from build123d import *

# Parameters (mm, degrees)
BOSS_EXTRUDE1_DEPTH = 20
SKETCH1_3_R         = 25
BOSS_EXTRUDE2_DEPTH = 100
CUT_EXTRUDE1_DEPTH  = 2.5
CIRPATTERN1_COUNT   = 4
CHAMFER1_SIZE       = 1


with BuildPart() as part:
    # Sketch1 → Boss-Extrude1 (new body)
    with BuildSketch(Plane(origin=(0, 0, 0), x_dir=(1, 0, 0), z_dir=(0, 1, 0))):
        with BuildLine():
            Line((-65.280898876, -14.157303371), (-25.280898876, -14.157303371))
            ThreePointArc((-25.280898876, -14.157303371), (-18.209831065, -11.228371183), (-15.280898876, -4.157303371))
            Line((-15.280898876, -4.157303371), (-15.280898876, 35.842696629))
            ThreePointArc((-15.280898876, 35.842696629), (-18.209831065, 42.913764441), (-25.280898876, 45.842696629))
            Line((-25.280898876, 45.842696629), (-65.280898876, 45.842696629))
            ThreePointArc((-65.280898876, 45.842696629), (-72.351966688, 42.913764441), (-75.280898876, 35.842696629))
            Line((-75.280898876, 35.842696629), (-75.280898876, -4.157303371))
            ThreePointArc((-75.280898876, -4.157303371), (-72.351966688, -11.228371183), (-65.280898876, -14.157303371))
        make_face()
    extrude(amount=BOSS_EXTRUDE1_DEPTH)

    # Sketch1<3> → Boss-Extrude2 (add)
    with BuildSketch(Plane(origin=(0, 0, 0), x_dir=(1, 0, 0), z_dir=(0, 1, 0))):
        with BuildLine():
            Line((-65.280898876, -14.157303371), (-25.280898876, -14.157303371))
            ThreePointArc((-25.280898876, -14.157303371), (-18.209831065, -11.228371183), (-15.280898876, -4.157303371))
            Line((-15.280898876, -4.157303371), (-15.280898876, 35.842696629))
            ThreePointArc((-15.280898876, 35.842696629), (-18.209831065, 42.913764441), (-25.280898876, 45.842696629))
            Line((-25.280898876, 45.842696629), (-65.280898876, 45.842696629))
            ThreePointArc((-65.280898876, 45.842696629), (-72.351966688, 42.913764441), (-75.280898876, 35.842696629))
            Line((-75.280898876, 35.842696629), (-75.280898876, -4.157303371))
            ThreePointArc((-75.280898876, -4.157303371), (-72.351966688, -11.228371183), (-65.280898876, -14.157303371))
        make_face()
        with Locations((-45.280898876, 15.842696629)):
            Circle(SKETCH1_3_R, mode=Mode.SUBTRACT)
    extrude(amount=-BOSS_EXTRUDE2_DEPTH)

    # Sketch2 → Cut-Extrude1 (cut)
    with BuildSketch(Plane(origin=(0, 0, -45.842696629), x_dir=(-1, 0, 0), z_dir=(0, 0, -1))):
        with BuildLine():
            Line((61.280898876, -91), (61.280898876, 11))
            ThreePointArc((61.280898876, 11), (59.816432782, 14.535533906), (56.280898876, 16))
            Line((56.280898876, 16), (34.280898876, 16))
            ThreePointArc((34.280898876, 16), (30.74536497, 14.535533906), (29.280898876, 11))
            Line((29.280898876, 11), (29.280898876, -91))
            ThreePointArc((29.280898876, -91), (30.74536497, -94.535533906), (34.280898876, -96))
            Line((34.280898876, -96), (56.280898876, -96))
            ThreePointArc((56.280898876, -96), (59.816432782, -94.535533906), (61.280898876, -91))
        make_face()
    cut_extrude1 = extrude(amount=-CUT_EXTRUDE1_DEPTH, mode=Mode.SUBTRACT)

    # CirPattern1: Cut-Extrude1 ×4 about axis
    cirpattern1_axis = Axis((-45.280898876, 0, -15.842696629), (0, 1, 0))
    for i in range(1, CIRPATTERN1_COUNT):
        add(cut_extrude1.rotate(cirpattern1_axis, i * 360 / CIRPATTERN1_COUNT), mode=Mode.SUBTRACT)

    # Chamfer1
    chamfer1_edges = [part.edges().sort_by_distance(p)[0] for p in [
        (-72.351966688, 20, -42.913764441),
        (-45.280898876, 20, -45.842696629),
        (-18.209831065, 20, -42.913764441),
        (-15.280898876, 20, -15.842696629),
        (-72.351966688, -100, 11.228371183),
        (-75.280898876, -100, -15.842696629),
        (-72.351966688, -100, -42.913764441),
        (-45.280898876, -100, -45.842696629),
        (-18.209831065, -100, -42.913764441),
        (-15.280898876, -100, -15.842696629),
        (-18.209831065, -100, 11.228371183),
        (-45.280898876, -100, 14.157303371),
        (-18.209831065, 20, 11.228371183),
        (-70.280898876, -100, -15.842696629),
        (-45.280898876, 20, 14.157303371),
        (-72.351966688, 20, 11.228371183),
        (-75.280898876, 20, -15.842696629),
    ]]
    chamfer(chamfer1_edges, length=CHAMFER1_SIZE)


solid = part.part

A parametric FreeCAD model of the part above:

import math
import FreeCAD as App
import Part
import Sketcher
Q = App.Units.Quantity


def edges_at(feature, points):
    """Names of the edges that pass closest to the given points."""
    edges = feature.Shape.Edges
    near = lambda p: min(range(len(edges)), key=lambda i: edges[i].distToShape(Part.Vertex(*p))[0])
    return sorted({f"Edge{near(p) + 1}" for p in points})

doc = App.newDocument("Part")
body = doc.addObject("PartDesign::Body", "Body")

# Sketch on XZ plane
sketch1 = body.newObject("Sketcher::SketchObject", "Sketch")
sketch1.AttachmentSupport = (doc.getObject("XZ_Plane"), [""])
sketch1.MapMode = "FlatFace"
sketch1.addGeometry([
    Part.LineSegment(App.Vector(-65.280899, 14.157303, 0), App.Vector(-25.280899, 14.157303, 0)),  # 0
    Part.ArcOfCircle(Part.Circle(App.Vector(-25.280899, 4.157303, 0), App.Vector(0, 0, 1), 10), math.radians(0), math.radians(90)),  # 1
    Part.LineSegment(App.Vector(-15.280899, 4.157303, 0), App.Vector(-15.280899, -35.842697, 0)),  # 2
    Part.ArcOfCircle(Part.Circle(App.Vector(-25.280899, -35.842697, 0), App.Vector(0, 0, 1), 10), math.radians(-90), math.radians(0)),  # 3
    Part.LineSegment(App.Vector(-25.280899, -45.842697, 0), App.Vector(-65.280899, -45.842697, 0)),  # 4
    Part.ArcOfCircle(Part.Circle(App.Vector(-65.280899, -35.842697, 0), App.Vector(0, 0, 1), 10), math.radians(180), math.radians(270)),  # 5
    Part.LineSegment(App.Vector(-75.280899, -35.842697, 0), App.Vector(-75.280899, 4.157303, 0)),  # 6
    Part.ArcOfCircle(Part.Circle(App.Vector(-65.280899, 4.157303, 0), App.Vector(0, 0, 1), 10), math.radians(90), math.radians(180)),  # 7
], False)
sketch1.addConstraint([
    Sketcher.Constraint("Tangent", 0, 2, 1, 2),
    Sketcher.Constraint("Tangent", 1, 1, 2, 1),
    Sketcher.Constraint("Tangent", 2, 2, 3, 2),
    Sketcher.Constraint("Tangent", 3, 1, 4, 1),
    Sketcher.Constraint("Tangent", 4, 2, 5, 2),
    Sketcher.Constraint("Tangent", 5, 1, 6, 1),
    Sketcher.Constraint("Tangent", 6, 2, 7, 2),
    Sketcher.Constraint("Tangent", 7, 1, 0, 1),
    Sketcher.Constraint("Horizontal", 0),
    Sketcher.Constraint("Vertical", 2),
    Sketcher.Constraint("Horizontal", 4),
    Sketcher.Constraint("Vertical", 6),
    Sketcher.Constraint("Equal", 1, 3),
    Sketcher.Constraint("Equal", 3, 5),
    Sketcher.Constraint("Equal", 5, 7),
    Sketcher.Constraint("Equal", 4, 2),
    Sketcher.Constraint("Radius", 1, Q("10 mm")),
    Sketcher.Constraint("DistanceX", 0, 1, 0, 2, Q("40 mm")),
    Sketcher.Constraint("DistanceX", 1, 3, -1, 1, Q("25.280899 mm")),
    Sketcher.Constraint("DistanceY", -1, 1, 1, 3, Q("4.157303 mm")),
])
pad1 = body.newObject("PartDesign::Pad", "Pad")
pad1.Profile = sketch1
pad1.Length = 20
pad1.Reversed = True

# Sketch on XZ plane
sketch2 = body.newObject("Sketcher::SketchObject", "Sketch001")
sketch2.AttachmentSupport = (doc.getObject("XZ_Plane"), [""])
sketch2.MapMode = "FlatFace"
sketch2.addGeometry([
    Part.LineSegment(App.Vector(-65.280899, 14.157303, 0), App.Vector(-25.280899, 14.157303, 0)),  # 0
    Part.ArcOfCircle(Part.Circle(App.Vector(-25.280899, 4.157303, 0), App.Vector(0, 0, 1), 10), math.radians(0), math.radians(90)),  # 1
    Part.LineSegment(App.Vector(-15.280899, 4.157303, 0), App.Vector(-15.280899, -35.842697, 0)),  # 2
    Part.ArcOfCircle(Part.Circle(App.Vector(-25.280899, -35.842697, 0), App.Vector(0, 0, 1), 10), math.radians(-90), math.radians(0)),  # 3
    Part.LineSegment(App.Vector(-25.280899, -45.842697, 0), App.Vector(-65.280899, -45.842697, 0)),  # 4
    Part.ArcOfCircle(Part.Circle(App.Vector(-65.280899, -35.842697, 0), App.Vector(0, 0, 1), 10), math.radians(180), math.radians(270)),  # 5
    Part.LineSegment(App.Vector(-75.280899, -35.842697, 0), App.Vector(-75.280899, 4.157303, 0)),  # 6
    Part.ArcOfCircle(Part.Circle(App.Vector(-65.280899, 4.157303, 0), App.Vector(0, 0, 1), 10), math.radians(90), math.radians(180)),  # 7
    Part.Circle(App.Vector(-45.280899, -15.842697, 0), App.Vector(0, 0, 1), 25),  # 8
], False)
sketch2.addConstraint([
    Sketcher.Constraint("Tangent", 0, 2, 1, 2),
    Sketcher.Constraint("Tangent", 1, 1, 2, 1),
    Sketcher.Constraint("Tangent", 2, 2, 3, 2),
    Sketcher.Constraint("Tangent", 3, 1, 4, 1),
    Sketcher.Constraint("Tangent", 4, 2, 5, 2),
    Sketcher.Constraint("Tangent", 5, 1, 6, 1),
    Sketcher.Constraint("Tangent", 6, 2, 7, 2),
    Sketcher.Constraint("Tangent", 7, 1, 0, 1),
    Sketcher.Constraint("Horizontal", 0),
    Sketcher.Constraint("Vertical", 2),
    Sketcher.Constraint("Horizontal", 4),
    Sketcher.Constraint("Vertical", 6),
    Sketcher.Constraint("Equal", 1, 3),
    Sketcher.Constraint("Equal", 3, 5),
    Sketcher.Constraint("Equal", 5, 7),
    Sketcher.Constraint("Equal", 4, 2),
    Sketcher.Constraint("Diameter", 8, Q("50 mm")),
    Sketcher.Constraint("Radius", 1, Q("10 mm")),
    Sketcher.Constraint("DistanceX", 0, 1, 0, 2, Q("40 mm")),
    Sketcher.Constraint("DistanceX", 8, 3, 3, 3, Q("20 mm")),
    Sketcher.Constraint("DistanceY", 3, 3, 8, 3, Q("20 mm")),
    Sketcher.Constraint("DistanceX", 1, 3, -1, 1, Q("25.280899 mm")),
    Sketcher.Constraint("DistanceY", -1, 1, 1, 3, Q("4.157303 mm")),
])
pad2 = body.newObject("PartDesign::Pad", "Pad001")
pad2.Profile = sketch2
pad2.Length = 100

# Sketch on XY plane
sketch3 = body.newObject("Sketcher::SketchObject", "Sketch002")
sketch3.AttachmentSupport = (doc.getObject("XY_Plane"), [""])
sketch3.MapMode = "FlatFace"
sketch3.AttachmentOffset = App.Placement(App.Vector(0, 0, -45.842697), App.Rotation())
sketch3.addGeometry([
    Part.LineSegment(App.Vector(-61.280899, -91, 0), App.Vector(-61.280899, 11, 0)),  # 0
    Part.ArcOfCircle(Part.Circle(App.Vector(-56.280899, 11, 0), App.Vector(0, 0, 1), 5), math.radians(90), math.radians(180)),  # 1
    Part.LineSegment(App.Vector(-56.280899, 16, 0), App.Vector(-34.280899, 16, 0)),  # 2
    Part.ArcOfCircle(Part.Circle(App.Vector(-34.280899, 11, 0), App.Vector(0, 0, 1), 5), math.radians(0), math.radians(90)),  # 3
    Part.LineSegment(App.Vector(-29.280899, 11, 0), App.Vector(-29.280899, -91, 0)),  # 4
    Part.ArcOfCircle(Part.Circle(App.Vector(-34.280899, -91, 0), App.Vector(0, 0, 1), 5), math.radians(-90), math.radians(0)),  # 5
    Part.LineSegment(App.Vector(-34.280899, -96, 0), App.Vector(-56.280899, -96, 0)),  # 6
    Part.ArcOfCircle(Part.Circle(App.Vector(-56.280899, -91, 0), App.Vector(0, 0, 1), 5), math.radians(180), math.radians(270)),  # 7
], False)
sketch3.addConstraint([
    Sketcher.Constraint("Tangent", 0, 2, 1, 2),
    Sketcher.Constraint("Tangent", 1, 1, 2, 1),
    Sketcher.Constraint("Tangent", 2, 2, 3, 2),
    Sketcher.Constraint("Tangent", 3, 1, 4, 1),
    Sketcher.Constraint("Tangent", 4, 2, 5, 2),
    Sketcher.Constraint("Tangent", 5, 1, 6, 1),
    Sketcher.Constraint("Tangent", 6, 2, 7, 2),
    Sketcher.Constraint("Tangent", 7, 1, 0, 1),
    Sketcher.Constraint("Vertical", 0),
    Sketcher.Constraint("Horizontal", 2),
    Sketcher.Constraint("Vertical", 4),
    Sketcher.Constraint("Horizontal", 6),
    Sketcher.Constraint("Equal", 1, 3),
    Sketcher.Constraint("Equal", 3, 5),
    Sketcher.Constraint("Equal", 5, 7),
    Sketcher.Constraint("Radius", 1, Q("5 mm")),
    Sketcher.Constraint("DistanceX", 2, 1, 2, 2, Q("22 mm")),
    Sketcher.Constraint("DistanceY", 0, 1, 0, 2, Q("102 mm")),
    Sketcher.Constraint("DistanceY", -1, 1, 1, 3, Q("11 mm")),
    Sketcher.Constraint("DistanceX", 1, 3, -1, 1, Q("56.280899 mm")),
])
pocket1 = body.newObject("PartDesign::Pocket", "Pocket")
pocket1.Profile = sketch3
pocket1.Length = 2.5
pocket1.Reversed = True
doc.recompute()

datumline = body.newObject("PartDesign::Line", "DatumLine")
datumline.Placement = App.Placement(App.Vector(-45.280899, 0, -15.842697), App.Rotation(App.Vector(0, 0, 1), App.Vector(0, 1, 0)))
polarpattern = body.newObject("PartDesign::PolarPattern", "PolarPattern")
polarpattern.Originals = [pocket1]
polarpattern.Axis = (datumline, [""])
polarpattern.Angle = 360
polarpattern.Occurrences = 4
body.Tip = polarpattern
doc.recompute()

chamfer = body.newObject("PartDesign::Chamfer", "Chamfer")
chamfer.Base = (polarpattern, edges_at(polarpattern, [
    (-72.352, 20, -42.914),
    (-45.281, 20, -45.843),
    (-18.21, 20, -42.914),
    (-15.281, 20, -15.843),
    (-72.352, -100, 11.228),
    (-75.281, -100, -15.843),
    (-72.352, -100, -42.914),
    (-45.281, -100, -45.843),
    (-18.21, -100, -42.914),
    (-15.281, -100, -15.843),
    (-18.21, -100, 11.228),
    (-45.281, -100, 14.157),
    (-18.21, 20, 11.228),
    (-70.281, -100, -15.843),
    (-45.281, 20, 14.157),
    (-72.352, 20, 11.228),
    (-75.281, 20, -15.843),
]))
chamfer.Size = 1

doc.recompute()
